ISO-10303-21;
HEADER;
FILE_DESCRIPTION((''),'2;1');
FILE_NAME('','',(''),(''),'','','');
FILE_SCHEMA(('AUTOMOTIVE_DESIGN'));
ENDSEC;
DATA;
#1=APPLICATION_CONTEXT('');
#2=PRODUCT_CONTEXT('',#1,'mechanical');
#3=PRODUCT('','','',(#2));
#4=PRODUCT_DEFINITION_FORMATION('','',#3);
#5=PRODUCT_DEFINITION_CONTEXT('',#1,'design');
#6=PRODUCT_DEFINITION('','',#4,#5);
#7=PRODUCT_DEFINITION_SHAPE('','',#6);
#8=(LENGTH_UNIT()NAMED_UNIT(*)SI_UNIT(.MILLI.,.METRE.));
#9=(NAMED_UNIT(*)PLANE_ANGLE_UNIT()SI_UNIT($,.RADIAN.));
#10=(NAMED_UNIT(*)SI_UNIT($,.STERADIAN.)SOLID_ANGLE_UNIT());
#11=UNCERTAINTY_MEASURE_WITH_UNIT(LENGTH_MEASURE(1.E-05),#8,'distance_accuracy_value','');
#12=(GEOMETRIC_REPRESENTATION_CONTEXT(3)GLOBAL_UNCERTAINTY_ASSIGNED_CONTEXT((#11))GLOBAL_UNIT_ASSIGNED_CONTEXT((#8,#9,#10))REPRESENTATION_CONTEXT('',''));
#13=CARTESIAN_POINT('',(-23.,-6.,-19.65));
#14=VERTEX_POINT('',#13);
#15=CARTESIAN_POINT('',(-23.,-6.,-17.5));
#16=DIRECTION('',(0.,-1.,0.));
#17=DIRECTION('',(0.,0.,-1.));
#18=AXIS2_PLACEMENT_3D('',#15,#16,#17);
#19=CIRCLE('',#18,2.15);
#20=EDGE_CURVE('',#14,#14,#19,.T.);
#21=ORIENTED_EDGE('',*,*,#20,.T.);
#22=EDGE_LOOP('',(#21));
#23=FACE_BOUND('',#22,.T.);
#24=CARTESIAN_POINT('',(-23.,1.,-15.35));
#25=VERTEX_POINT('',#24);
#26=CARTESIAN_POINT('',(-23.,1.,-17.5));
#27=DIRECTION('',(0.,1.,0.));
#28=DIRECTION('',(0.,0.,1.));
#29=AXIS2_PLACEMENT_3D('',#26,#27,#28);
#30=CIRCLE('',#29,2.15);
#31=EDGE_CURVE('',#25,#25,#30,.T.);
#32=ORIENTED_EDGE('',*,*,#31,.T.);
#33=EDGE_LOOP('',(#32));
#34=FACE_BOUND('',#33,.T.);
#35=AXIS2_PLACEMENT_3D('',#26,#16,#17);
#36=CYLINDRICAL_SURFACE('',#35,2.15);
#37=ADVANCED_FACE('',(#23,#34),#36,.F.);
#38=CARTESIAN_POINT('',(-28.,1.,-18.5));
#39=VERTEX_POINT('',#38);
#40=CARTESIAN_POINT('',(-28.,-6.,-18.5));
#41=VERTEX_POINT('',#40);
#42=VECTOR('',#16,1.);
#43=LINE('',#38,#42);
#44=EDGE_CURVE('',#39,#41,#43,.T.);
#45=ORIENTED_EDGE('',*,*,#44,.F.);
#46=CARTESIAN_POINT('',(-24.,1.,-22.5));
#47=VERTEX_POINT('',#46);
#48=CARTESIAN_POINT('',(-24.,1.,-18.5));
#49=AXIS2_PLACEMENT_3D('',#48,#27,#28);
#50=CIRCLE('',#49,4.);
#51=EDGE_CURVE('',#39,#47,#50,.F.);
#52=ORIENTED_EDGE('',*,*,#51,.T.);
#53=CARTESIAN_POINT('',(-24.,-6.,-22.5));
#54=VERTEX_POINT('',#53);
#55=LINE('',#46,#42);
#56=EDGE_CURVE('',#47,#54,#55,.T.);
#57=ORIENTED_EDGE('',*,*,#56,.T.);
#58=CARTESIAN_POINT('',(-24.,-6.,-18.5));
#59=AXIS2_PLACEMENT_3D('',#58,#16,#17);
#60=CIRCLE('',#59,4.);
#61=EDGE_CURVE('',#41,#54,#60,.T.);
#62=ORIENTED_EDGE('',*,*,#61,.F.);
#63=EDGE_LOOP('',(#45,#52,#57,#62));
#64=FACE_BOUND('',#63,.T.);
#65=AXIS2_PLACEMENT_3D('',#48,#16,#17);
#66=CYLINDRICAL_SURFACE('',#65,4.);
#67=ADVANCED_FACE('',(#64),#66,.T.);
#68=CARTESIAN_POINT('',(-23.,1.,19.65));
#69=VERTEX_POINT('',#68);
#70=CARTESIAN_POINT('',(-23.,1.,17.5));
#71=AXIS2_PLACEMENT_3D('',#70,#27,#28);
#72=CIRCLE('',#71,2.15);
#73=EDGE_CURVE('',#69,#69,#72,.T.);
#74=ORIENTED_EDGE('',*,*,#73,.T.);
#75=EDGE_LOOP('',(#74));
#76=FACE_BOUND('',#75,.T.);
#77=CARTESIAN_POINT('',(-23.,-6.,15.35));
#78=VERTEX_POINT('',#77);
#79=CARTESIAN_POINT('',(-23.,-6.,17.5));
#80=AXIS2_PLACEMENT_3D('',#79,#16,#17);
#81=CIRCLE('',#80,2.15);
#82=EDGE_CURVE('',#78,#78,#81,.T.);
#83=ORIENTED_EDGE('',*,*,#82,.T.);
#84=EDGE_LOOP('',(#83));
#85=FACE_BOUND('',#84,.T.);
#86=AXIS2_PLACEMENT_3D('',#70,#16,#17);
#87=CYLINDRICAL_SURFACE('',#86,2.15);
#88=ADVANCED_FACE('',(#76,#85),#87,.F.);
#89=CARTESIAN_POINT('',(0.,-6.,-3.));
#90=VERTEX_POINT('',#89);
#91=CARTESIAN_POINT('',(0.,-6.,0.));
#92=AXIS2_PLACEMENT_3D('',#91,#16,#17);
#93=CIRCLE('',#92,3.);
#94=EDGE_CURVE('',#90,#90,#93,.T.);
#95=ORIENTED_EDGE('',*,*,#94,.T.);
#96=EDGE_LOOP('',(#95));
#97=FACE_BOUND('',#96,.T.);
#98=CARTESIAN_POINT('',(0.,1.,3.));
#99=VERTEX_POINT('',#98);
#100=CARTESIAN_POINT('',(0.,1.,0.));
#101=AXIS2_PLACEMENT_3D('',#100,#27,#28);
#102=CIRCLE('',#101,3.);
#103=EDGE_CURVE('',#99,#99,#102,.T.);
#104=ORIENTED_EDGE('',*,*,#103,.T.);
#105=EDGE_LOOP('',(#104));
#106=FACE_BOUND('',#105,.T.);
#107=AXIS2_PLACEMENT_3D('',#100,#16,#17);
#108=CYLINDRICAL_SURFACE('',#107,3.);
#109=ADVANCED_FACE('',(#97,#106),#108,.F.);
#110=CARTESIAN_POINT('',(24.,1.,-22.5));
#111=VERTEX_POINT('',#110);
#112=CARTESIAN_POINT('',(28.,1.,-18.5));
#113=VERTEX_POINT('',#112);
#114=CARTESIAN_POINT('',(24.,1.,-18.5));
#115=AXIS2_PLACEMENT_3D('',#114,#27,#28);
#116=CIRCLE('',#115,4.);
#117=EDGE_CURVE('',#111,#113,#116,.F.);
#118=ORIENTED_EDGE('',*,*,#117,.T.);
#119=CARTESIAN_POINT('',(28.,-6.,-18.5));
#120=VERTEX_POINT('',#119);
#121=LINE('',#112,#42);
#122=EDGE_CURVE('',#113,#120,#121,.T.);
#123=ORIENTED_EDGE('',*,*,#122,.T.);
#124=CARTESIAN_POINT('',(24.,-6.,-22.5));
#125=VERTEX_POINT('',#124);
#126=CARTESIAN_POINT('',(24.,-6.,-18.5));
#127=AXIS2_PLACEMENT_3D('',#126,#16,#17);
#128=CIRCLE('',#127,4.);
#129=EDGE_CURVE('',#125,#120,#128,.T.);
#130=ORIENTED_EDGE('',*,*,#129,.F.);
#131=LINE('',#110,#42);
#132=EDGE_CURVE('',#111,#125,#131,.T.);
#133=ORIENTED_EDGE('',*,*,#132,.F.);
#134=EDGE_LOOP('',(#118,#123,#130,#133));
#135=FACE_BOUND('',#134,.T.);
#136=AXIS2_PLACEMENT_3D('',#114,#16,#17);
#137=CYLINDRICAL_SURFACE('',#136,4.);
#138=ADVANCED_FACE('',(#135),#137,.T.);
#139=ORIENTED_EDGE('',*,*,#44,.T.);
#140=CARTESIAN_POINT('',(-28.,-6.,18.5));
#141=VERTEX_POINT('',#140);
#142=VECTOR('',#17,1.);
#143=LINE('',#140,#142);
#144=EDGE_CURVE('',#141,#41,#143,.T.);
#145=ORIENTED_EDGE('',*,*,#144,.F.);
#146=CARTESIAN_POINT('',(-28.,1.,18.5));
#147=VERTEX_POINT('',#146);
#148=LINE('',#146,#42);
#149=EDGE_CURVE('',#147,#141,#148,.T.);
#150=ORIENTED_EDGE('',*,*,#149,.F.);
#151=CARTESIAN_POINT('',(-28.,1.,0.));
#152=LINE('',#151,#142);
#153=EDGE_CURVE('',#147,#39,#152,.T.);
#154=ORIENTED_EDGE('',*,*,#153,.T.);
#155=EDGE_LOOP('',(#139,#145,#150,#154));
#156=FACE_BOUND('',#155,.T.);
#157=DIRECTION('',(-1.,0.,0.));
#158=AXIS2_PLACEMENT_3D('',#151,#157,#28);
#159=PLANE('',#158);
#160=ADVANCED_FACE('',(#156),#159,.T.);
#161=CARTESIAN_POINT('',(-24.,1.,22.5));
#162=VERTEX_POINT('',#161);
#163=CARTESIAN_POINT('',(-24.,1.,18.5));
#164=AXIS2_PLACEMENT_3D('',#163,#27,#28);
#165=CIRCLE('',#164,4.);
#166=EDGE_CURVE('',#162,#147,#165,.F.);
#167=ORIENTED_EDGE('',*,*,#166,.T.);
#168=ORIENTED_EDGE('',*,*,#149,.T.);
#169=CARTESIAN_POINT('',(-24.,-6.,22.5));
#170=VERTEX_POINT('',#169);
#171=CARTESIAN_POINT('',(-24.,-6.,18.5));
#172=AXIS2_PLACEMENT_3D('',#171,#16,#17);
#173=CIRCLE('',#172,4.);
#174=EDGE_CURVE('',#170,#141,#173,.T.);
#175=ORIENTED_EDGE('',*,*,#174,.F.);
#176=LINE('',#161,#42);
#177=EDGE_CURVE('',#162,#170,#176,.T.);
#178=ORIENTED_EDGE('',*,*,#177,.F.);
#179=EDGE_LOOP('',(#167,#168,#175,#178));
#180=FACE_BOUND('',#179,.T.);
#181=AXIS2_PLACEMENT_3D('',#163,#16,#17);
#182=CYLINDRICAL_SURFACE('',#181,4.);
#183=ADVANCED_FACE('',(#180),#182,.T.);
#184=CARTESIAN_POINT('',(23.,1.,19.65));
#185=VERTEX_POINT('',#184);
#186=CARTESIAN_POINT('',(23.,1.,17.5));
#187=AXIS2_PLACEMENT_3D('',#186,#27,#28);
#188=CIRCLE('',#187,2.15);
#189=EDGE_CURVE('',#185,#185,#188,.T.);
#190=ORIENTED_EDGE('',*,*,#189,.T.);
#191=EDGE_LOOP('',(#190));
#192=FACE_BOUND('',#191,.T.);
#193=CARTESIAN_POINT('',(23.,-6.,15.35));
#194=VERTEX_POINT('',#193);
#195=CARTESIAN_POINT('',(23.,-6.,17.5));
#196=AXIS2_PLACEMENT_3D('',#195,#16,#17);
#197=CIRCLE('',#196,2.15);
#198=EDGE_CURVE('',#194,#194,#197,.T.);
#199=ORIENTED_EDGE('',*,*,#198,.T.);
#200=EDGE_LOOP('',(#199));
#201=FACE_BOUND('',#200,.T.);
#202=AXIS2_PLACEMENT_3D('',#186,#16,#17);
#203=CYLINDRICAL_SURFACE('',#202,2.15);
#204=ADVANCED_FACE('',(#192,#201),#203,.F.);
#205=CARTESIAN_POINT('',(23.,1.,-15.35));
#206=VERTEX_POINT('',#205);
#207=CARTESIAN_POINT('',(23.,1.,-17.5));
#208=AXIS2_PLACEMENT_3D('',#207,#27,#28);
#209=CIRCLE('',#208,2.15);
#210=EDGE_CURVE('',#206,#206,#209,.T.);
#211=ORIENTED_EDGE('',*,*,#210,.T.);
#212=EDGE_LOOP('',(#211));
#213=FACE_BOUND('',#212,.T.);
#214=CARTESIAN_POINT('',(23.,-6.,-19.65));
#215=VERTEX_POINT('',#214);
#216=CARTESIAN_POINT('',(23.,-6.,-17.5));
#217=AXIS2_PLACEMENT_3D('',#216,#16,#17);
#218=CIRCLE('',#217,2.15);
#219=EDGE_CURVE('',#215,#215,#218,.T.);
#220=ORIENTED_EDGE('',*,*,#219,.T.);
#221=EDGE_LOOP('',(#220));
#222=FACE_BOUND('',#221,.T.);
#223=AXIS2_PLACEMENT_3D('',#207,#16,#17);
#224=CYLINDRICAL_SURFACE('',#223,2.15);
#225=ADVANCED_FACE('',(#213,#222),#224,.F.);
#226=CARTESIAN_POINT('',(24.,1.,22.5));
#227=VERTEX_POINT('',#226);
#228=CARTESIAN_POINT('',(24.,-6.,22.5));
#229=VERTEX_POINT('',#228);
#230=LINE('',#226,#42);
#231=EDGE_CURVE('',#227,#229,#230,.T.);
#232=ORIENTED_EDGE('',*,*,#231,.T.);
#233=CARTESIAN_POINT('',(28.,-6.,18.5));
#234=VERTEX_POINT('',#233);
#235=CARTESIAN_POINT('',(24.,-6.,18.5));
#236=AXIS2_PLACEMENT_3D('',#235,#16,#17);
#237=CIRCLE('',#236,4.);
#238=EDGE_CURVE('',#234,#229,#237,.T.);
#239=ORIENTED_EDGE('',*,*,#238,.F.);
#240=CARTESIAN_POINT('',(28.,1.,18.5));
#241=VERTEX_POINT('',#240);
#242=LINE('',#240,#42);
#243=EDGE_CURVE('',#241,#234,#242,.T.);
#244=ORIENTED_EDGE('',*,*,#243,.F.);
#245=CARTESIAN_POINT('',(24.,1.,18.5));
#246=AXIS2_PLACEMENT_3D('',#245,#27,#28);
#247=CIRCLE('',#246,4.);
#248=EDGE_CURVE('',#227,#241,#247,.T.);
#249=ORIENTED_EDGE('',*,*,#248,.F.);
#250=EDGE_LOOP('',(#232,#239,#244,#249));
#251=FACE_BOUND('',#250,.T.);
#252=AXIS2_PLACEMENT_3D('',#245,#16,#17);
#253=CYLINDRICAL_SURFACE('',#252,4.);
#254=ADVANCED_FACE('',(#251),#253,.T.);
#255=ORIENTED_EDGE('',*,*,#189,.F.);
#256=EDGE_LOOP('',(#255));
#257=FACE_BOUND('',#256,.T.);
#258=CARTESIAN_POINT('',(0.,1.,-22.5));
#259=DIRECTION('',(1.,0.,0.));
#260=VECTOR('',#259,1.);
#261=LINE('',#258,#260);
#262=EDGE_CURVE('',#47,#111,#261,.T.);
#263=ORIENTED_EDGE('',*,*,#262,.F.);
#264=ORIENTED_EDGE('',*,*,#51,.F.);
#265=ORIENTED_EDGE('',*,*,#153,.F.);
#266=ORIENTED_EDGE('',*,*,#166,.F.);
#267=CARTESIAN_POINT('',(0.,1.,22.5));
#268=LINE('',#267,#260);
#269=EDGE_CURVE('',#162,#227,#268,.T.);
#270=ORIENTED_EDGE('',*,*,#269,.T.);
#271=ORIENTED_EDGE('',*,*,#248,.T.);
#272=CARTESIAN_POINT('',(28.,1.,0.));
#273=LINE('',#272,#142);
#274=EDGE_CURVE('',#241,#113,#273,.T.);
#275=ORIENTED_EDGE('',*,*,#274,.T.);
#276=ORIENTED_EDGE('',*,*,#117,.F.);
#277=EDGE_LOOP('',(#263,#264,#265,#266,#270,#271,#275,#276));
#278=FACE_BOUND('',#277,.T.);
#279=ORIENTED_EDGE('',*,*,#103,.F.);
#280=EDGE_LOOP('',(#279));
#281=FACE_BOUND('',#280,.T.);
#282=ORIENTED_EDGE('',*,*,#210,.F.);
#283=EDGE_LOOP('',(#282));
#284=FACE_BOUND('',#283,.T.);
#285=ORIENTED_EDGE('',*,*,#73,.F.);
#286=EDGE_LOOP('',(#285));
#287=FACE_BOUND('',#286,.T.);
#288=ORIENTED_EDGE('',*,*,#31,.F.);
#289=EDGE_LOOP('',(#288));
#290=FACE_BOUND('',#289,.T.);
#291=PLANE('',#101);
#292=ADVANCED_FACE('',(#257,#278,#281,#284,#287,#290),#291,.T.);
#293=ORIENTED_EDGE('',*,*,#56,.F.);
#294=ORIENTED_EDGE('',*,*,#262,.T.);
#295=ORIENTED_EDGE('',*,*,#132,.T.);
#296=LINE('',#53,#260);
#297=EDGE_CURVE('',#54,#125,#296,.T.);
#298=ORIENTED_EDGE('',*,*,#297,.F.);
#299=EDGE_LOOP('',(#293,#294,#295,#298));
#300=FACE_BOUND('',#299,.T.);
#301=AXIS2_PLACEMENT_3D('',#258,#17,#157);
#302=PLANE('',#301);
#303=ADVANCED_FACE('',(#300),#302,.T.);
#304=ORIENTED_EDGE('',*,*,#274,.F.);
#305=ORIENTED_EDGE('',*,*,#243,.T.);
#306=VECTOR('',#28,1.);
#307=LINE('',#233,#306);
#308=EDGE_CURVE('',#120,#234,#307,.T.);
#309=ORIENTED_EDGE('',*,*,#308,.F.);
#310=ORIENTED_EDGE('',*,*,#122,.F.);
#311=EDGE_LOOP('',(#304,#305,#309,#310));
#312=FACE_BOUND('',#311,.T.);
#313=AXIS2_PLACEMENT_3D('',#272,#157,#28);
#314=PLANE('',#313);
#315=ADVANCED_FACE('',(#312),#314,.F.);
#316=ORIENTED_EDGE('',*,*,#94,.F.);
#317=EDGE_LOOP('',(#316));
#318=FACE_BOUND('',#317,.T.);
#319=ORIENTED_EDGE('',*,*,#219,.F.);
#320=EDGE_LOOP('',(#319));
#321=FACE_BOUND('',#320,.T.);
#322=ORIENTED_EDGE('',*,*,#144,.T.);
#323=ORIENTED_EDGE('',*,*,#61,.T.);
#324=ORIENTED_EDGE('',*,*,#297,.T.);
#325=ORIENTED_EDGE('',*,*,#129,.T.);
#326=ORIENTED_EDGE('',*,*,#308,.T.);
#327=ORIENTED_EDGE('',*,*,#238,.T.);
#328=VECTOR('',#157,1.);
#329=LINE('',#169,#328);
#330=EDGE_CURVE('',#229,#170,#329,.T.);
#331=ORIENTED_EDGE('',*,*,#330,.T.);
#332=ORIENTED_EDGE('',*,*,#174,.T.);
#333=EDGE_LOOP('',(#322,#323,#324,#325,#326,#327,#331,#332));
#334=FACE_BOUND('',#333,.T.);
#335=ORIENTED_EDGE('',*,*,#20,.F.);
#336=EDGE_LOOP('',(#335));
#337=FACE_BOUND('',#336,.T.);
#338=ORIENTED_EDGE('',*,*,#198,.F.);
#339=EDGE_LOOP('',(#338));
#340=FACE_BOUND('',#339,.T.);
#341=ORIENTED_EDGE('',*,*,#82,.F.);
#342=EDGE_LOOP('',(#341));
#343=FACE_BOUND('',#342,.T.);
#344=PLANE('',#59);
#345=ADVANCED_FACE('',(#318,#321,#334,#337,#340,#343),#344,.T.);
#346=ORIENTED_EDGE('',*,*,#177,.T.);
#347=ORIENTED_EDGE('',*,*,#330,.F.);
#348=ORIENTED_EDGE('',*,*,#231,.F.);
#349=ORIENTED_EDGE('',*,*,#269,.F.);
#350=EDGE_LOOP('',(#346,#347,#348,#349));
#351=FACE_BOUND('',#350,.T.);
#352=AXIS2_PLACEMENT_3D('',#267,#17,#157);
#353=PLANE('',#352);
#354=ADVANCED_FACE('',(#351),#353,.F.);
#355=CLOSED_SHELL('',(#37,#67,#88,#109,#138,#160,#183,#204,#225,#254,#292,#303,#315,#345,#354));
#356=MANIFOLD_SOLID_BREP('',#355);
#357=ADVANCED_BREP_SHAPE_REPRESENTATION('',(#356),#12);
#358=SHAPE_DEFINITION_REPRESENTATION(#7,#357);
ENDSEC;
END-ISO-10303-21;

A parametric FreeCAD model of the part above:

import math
import FreeCAD as App
import Part
import Sketcher
from FreeCAD import Vector

doc = App.newDocument("Part")
body = doc.addObject("PartDesign::Body", "Body")

# Sketch on XZ plane
sketch1 = body.newObject("Sketcher::SketchObject", "Sketch")
sketch1.AttachmentSupport = (doc.getObject("XZ_Plane"), [""])
sketch1.MapMode = "FlatFace"
sketch1.addGeometry([
    Part.LineSegment(Vector(-24, 22.5, 0), Vector(24, 22.5, 0)),  # 0
    Part.ArcOfCircle(Part.Circle(Vector(24, 18.5, 0), Vector(0, 0, 1), 4), math.radians(0), math.radians(90)),  # 1
    Part.LineSegment(Vector(28, 18.5, 0), Vector(28, -18.5, 0)),  # 2
    Part.ArcOfCircle(Part.Circle(Vector(24, -18.5, 0), Vector(0, 0, 1), 4), math.radians(-90), math.radians(0)),  # 3
    Part.LineSegment(Vector(24, -22.5, 0), Vector(-24, -22.5, 0)),  # 4
    Part.ArcOfCircle(Part.Circle(Vector(-24, -18.5, 0), Vector(0, 0, 1), 4), math.radians(180), math.radians(270)),  # 5
    Part.LineSegment(Vector(-28, -18.5, 0), Vector(-28, 18.5, 0)),  # 6
    Part.ArcOfCircle(Part.Circle(Vector(-24, 18.5, 0), Vector(0, 0, 1), 4), math.radians(90), math.radians(180)),  # 7
    Part.Circle(Vector(-23, 17.5, 0), Vector(0, 0, 1), 2.15),  # 8
    Part.Circle(Vector(23, 17.5, 0), Vector(0, 0, 1), 2.15),  # 9
    Part.Circle(Vector(-23, -17.5, 0), Vector(0, 0, 1), 2.15),  # 10
    Part.Circle(Vector(0, 0, 0), Vector(0, 0, 1), 3),  # 11
    Part.Circle(Vector(23, -17.5, 0), Vector(0, 0, 1), 2.15),  # 12
], False)
sketch1.addConstraint([
    Sketcher.Constraint("Tangent", 0, 2, 1, 2),
    Sketcher.Constraint("Tangent", 1, 1, 2, 1),
    Sketcher.Constraint("Tangent", 2, 2, 3, 2),
    Sketcher.Constraint("Tangent", 3, 1, 4, 1),
    Sketcher.Constraint("Tangent", 4, 2, 5, 2),
    Sketcher.Constraint("Tangent", 5, 1, 6, 1),
    Sketcher.Constraint("Tangent", 6, 2, 7, 2),
    Sketcher.Constraint("Tangent", 7, 1, 0, 1),
    Sketcher.Constraint("Horizontal", 0),
    Sketcher.Constraint("Vertical", 2),
    Sketcher.Constraint("Horizontal", 4),
    Sketcher.Constraint("Vertical", 6),
    Sketcher.Constraint("Coincident", 11, 3, -1, 1),
    Sketcher.Constraint("Equal", 1, 3),
    Sketcher.Constraint("Equal", 3, 5),
    Sketcher.Constraint("Equal", 5, 7),
    Sketcher.Constraint("Equal", 8, 9),
    Sketcher.Constraint("Equal", 9, 10),
    Sketcher.Constraint("Equal", 10, 12),
    Sketcher.Constraint("Symmetric", 1, 3, 5, 3, -1, 1),
    Sketcher.Constraint("Symmetric", 9, 3, 10, 3, -1, 1),
    Sketcher.Constraint("Symmetric", 8, 3, 12, 3, -1, 1),
    Sketcher.Constraint("Symmetric", 8, 3, 9, 3, -2),
    Sketcher.Constraint("Diameter", 11, 6.0),
    Sketcher.Constraint("Radius", 1, 4.0),
    Sketcher.Constraint("Diameter", 8, 4.3),
    Sketcher.Constraint("DistanceX", 0, 1, 0, 2, 48.0),
    Sketcher.Constraint("DistanceY", 2, 2, 2, 1, 37.0),
    Sketcher.Constraint("DistanceX", 8, 3, -1, 1, 23.0),
    Sketcher.Constraint("DistanceY", 8, 3, 7, 3, 1.0),
])
pad1 = body.newObject("PartDesign::Pad", "Pad")
pad1.Profile = sketch1
pad1.Length = 1
pad1.Reversed = True

# Sketch on XZ plane
sketch2 = body.newObject("Sketcher::SketchObject", "Sketch001")
sketch2.AttachmentSupport = (doc.getObject("XZ_Plane"), [""])
sketch2.MapMode = "FlatFace"
sketch2.AttachmentOffset = App.Placement(Vector(0, 0, 6), App.Rotation())
sketch2.addGeometry([
    Part.LineSegment(Vector(-24, -22.5, 0), Vector(24, -22.5, 0)),  # 0
    Part.ArcOfCircle(Part.Circle(Vector(24, -18.5, 0), Vector(0, 0, 1), 4), math.radians(-90), math.radians(0)),  # 1
    Part.LineSegment(Vector(28, -18.5, 0), Vector(28, 18.5, 0)),  # 2
    Part.ArcOfCircle(Part.Circle(Vector(24, 18.5, 0), Vector(0, 0, 1), 4), math.radians(0), math.radians(90)),  # 3
    Part.LineSegment(Vector(24, 22.5, 0), Vector(-24, 22.5, 0)),  # 4
    Part.ArcOfCircle(Part.Circle(Vector(-24, 18.5, 0), Vector(0, 0, 1), 4), math.radians(90), math.radians(180)),  # 5
    Part.LineSegment(Vector(-28, 18.5, 0), Vector(-28, -18.5, 0)),  # 6
    Part.ArcOfCircle(Part.Circle(Vector(-24, -18.5, 0), Vector(0, 0, 1), 4), math.radians(180), math.radians(270)),  # 7
    Part.Circle(Vector(-23, -17.5, 0), Vector(0, 0, 1), 2.15),  # 8
    Part.Circle(Vector(23, -17.5, 0), Vector(0, 0, 1), 2.15),  # 9
    Part.Circle(Vector(-23, 17.5, 0), Vector(0, 0, 1), 2.15),  # 10
    Part.Circle(Vector(0, 0, 0), Vector(0, 0, 1), 3),  # 11
    Part.Circle(Vector(23, 17.5, 0), Vector(0, 0, 1), 2.15),  # 12
], False)
sketch2.addConstraint([
    Sketcher.Constraint("Tangent", 0, 2, 1, 1),
    Sketcher.Constraint("Tangent", 1, 2, 2, 1),
    Sketcher.Constraint("Tangent", 2, 2, 3, 1),
    Sketcher.Constraint("Tangent", 3, 2, 4, 1),
    Sketcher.Constraint("Tangent", 4, 2, 5, 1),
    Sketcher.Constraint("Tangent", 5, 2, 6, 1),
    Sketcher.Constraint("Tangent", 6, 2, 7, 1),
    Sketcher.Constraint("Tangent", 7, 2, 0, 1),
    Sketcher.Constraint("Horizontal", 0),
    Sketcher.Constraint("Vertical", 2),
    Sketcher.Constraint("Horizontal", 4),
    Sketcher.Constraint("Vertical", 6),
    Sketcher.Constraint("Coincident", 11, 3, -1, 1),
    Sketcher.Constraint("Equal", 1, 3),
    Sketcher.Constraint("Equal", 3, 5),
    Sketcher.Constraint("Equal", 5, 7),
    Sketcher.Constraint("Equal", 8, 9),
    Sketcher.Constraint("Equal", 9, 10),
    Sketcher.Constraint("Equal", 10, 12),
    Sketcher.Constraint("Symmetric", 1, 3, 5, 3, -1, 1),
    Sketcher.Constraint("Symmetric", 9, 3, 10, 3, -1, 1),
    Sketcher.Constraint("Symmetric", 8, 3, 12, 3, -1, 1),
    Sketcher.Constraint("Symmetric", 8, 3, 9, 3, -2),
    Sketcher.Constraint("Diameter", 11, 6.0),
    Sketcher.Constraint("Radius", 1, 4.0),
    Sketcher.Constraint("Diameter", 8, 4.3),
    Sketcher.Constraint("DistanceX", 0, 1, 0, 2, 48.0),
    Sketcher.Constraint("DistanceY", 2, 1, 2, 2, 37.0),
    Sketcher.Constraint("DistanceX", 8, 3, -1, 1, 23.0),
    Sketcher.Constraint("DistanceY", 7, 3, 8, 3, 1.0),
])
pad2 = body.newObject("PartDesign::Pad", "Pad001")
pad2.Profile = sketch2
pad2.Length = 6
pad2.Reversed = True

doc.recompute()
